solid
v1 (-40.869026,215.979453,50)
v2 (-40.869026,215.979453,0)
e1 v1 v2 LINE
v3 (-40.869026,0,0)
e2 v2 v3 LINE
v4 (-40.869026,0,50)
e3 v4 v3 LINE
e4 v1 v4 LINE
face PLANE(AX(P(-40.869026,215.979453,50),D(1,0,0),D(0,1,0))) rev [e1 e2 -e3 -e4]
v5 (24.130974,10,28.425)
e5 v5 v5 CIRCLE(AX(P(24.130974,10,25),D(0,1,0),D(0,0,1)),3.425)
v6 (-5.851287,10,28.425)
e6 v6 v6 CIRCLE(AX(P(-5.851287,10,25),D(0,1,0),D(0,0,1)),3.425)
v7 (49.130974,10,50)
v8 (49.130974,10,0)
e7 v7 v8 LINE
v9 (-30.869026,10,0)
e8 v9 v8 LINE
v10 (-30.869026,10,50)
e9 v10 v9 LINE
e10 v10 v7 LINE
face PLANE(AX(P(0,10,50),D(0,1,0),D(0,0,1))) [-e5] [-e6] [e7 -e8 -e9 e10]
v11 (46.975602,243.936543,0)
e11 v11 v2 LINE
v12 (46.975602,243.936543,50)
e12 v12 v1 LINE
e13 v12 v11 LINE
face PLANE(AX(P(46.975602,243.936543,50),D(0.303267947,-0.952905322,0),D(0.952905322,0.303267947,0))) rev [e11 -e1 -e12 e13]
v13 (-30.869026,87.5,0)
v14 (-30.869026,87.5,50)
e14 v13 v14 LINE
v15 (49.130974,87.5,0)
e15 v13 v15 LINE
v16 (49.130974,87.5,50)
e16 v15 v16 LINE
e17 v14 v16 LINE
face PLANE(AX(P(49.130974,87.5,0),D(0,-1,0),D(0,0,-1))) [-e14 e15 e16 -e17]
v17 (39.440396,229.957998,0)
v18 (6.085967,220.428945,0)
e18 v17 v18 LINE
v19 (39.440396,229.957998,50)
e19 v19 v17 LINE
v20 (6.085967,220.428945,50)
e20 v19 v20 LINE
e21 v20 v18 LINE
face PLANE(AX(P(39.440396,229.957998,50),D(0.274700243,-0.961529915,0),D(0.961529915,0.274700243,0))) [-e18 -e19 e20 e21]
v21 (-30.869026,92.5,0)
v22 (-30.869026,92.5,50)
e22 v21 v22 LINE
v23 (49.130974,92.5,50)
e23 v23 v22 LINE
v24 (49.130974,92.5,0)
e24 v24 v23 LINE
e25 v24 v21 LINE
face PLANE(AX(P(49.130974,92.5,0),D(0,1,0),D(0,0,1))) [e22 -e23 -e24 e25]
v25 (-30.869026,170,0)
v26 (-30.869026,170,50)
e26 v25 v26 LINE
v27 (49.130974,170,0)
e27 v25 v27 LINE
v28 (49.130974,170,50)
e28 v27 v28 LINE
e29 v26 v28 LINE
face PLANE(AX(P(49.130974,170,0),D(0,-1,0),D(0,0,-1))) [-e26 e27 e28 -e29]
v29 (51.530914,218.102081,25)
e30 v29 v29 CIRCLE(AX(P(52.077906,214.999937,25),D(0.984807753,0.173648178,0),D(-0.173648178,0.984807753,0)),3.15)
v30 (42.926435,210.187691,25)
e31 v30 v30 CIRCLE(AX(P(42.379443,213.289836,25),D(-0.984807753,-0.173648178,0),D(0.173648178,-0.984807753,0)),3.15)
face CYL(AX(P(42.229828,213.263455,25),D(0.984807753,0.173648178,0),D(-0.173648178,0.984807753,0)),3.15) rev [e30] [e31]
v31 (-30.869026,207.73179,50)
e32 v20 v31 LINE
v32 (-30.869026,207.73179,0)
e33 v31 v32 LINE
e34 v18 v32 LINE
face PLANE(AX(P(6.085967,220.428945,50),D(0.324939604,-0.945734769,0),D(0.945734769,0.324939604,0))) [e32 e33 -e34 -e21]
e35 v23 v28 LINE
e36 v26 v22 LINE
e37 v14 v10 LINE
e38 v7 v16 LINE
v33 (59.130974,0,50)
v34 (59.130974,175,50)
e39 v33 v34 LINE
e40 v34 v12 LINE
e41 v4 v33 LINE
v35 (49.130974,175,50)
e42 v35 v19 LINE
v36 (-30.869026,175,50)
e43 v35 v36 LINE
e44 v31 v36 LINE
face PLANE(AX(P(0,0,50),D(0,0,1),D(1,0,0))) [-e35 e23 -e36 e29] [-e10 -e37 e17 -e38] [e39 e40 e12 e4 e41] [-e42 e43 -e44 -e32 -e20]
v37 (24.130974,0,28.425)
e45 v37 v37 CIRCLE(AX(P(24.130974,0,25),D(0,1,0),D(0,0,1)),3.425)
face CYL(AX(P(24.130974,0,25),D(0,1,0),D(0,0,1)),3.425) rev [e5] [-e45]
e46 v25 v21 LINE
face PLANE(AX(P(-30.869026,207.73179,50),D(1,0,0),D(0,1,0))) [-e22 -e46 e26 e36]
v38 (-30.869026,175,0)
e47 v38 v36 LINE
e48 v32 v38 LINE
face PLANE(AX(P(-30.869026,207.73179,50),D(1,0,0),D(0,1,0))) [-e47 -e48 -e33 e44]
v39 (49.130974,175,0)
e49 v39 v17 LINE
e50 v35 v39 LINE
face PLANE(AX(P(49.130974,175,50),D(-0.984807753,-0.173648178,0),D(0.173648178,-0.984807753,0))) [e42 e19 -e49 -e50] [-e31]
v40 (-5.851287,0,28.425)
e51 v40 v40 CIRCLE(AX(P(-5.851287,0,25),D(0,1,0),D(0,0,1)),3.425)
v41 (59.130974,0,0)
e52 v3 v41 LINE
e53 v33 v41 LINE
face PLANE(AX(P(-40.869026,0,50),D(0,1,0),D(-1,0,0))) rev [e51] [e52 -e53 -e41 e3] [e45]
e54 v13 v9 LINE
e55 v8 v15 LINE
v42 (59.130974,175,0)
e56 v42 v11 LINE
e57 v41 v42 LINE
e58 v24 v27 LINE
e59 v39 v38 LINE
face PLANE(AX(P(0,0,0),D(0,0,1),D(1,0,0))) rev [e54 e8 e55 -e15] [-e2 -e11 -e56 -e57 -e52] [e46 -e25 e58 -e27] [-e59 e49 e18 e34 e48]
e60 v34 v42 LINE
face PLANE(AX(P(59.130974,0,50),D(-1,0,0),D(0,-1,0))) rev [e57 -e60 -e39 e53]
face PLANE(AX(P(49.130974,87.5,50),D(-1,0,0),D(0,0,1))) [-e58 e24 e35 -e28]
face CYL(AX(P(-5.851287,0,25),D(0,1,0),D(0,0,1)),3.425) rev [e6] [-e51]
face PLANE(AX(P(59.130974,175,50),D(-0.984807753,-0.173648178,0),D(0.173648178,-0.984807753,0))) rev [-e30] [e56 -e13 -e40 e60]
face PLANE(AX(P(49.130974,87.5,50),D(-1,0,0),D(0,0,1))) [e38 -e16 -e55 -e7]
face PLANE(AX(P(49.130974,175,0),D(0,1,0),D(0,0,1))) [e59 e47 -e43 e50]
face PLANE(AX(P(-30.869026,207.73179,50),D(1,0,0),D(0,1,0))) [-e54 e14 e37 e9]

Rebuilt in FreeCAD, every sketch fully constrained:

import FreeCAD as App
import Part
import Sketcher
from FreeCAD import Vector
Q = App.Units.Quantity


def add_polygon(sketch, points):
    """Adds a closed chain of lines whose ends are joined by coincident constraints."""
    first, n = sketch.GeometryCount, len(points)
    for a, b in zip(points, points[1:] + points[:1]):
        sketch.addGeometry(Part.LineSegment(App.Vector(*a, 0), App.Vector(*b, 0)), False)
    for i in range(n):
        sketch.addConstraint(Sketcher.Constraint("Coincident", first + i, 2, first + (i + 1) % n, 1))

doc = App.newDocument("Part")
body = doc.addObject("PartDesign::Body", "Body")

sketch1 = doc.addObject("Sketcher::SketchObject", "Sketch")
body.addObject(sketch1)
sketch1.AttachmentSupport = (doc.XY_Plane, [""])
sketch1.MapMode = "FlatFace"
add_polygon(sketch1, [(-40.869026, 215.979453), (-40.869026, 0), (59.130974, 0), (59.130974, 175), (46.975602, 243.936543)])
add_polygon(sketch1, [(49.130974, 10), (-30.869026, 10), (-30.869026, 207.73179), (6.085967, 220.428945), (39.440396, 229.957998), (49.130974, 175)])
sketch1.addConstraint([
    Sketcher.Constraint("Vertical", 0),
    Sketcher.Constraint("Horizontal", 1),
    Sketcher.Constraint("Vertical", 2),
    Sketcher.Constraint("Horizontal", 5),
    Sketcher.Constraint("Vertical", 6),
    Sketcher.Constraint("Vertical", 10),
    Sketcher.Constraint("PointOnObject", 0, 2, -1),
    Sketcher.Constraint("Parallel", 3, 9),
    Sketcher.Constraint("Horizontal", 2, 2, 9, 2),
    Sketcher.Constraint("DistanceX", 1, 1, 1, 2, 100.0),
    Sketcher.Constraint("DistanceX", 5, 2, 5, 1, 80.0),
    Sketcher.Constraint("DistanceY", 2, 1, 2, 2, 175.0),
    Sketcher.Constraint("DistanceY", 10, 2, 10, 1, 165.0),
    Sketcher.Constraint("Angle", 3, Q("100 deg")),
    Sketcher.Constraint("Distance", 3, 70.0),
    Sketcher.Constraint("DistanceX", 0, 2, 5, 2, 10.0),
    Sketcher.Constraint("DistanceY", 6, 1, 6, 2, 197.73179),
    Sketcher.Constraint("DistanceX", -1, 1, 3, 2, 46.975602),
    Sketcher.Constraint("DistanceY", 7, 2, 3, 2, 23.507598),
    Sketcher.Constraint("Distance", 7, 39.075431),
    Sketcher.Constraint("DistanceY", 0, 2, 0, 1, 215.979453),
    Sketcher.Constraint("DistanceX", 7, 2, 8, 2, 33.354429),
])
pad1 = doc.addObject("PartDesign::Pad", "Pad")
body.addObject(pad1)
pad1.Profile = sketch1
pad1.Length = 50

sketch2 = doc.addObject("Sketcher::SketchObject", "Sketch001")
body.addObject(sketch2)
sketch2.Placement = App.Placement(Vector(87.27472, 15.388888, 0), App.Rotation(Vector(0, 0, -1), Vector(-0.173648178, 0.984807753, 0), Vector(0.984807753, 0.173648178, 0), "ZXY"))
sketch2.addGeometry(Part.Circle(Vector(-25, 202.690371, 0), Vector(0, 0, 1), 3.15), False)
sketch2.addConstraint([
    Sketcher.Constraint("Diameter", 0, 6.3),
    Sketcher.Constraint("DistanceX", 0, 3, -1, 1, 25.0),
    Sketcher.Constraint("DistanceY", -1, 1, 0, 3, 202.690371),
])
pocket1 = doc.addObject("PartDesign::Pocket", "Pocket")
body.addObject(pocket1)
pocket1.Profile = sketch2
pocket1.Length = 10

sketch3 = doc.addObject("Sketcher::SketchObject", "Sketch002")
body.addObject(sketch3)
sketch3.AttachmentSupport = (doc.XZ_Plane, [""])
sketch3.MapMode = "FlatFace"
sketch3.AttachmentOffset = App.Placement(Vector(0, 0, -10), App.Rotation())
sketch3.addGeometry([
    Part.Circle(Vector(-5.851287, 25, 0), Vector(0, 0, 1), 3.425),
    Part.Circle(Vector(24.130974, 25, 0), Vector(0, 0, 1), 3.425),
], False)
sketch3.addConstraint([
    Sketcher.Constraint("Equal", 0, 1),
    Sketcher.Constraint("Horizontal", 0, 3, 1, 3),
    Sketcher.Constraint("Diameter", 0, 6.85),
    Sketcher.Constraint("DistanceY", -1, 1, 0, 3, 25.0),
    Sketcher.Constraint("DistanceX", 0, 3, 1, 3, 29.982261),
    Sketcher.Constraint("DistanceX", 0, 3, -1, 1, 5.851287),
])
pocket2 = doc.addObject("PartDesign::Pocket", "Pocket001")
body.addObject(pocket2)
pocket2.Profile = sketch3
pocket2.Length = 10
pocket2.Reversed = True

sketch4 = doc.addObject("Sketcher::SketchObject", "Sketch003")
body.addObject(sketch4)
sketch4.AttachmentSupport = (doc.XY_Plane, [""])
sketch4.MapMode = "FlatFace"
sketch4.AttachmentOffset = App.Placement(Vector(0, 0, 50), App.Rotation())
add_polygon(sketch4, [(-30.869026, 175), (-30.869026, 170), (49.130974, 170), (49.130974, 175)])
add_polygon(sketch4, [(-30.869026, 92.5), (-30.869026, 87.5), (49.130974, 87.5), (49.130974, 92.5)])
sketch4.addConstraint([
    Sketcher.Constraint("Vertical", 0),
    Sketcher.Constraint("Horizontal", 1),
    Sketcher.Constraint("Vertical", 2),
    Sketcher.Constraint("Horizontal", 3),
    Sketcher.Constraint("Vertical", 4),
    Sketcher.Constraint("Horizontal", 5),
    Sketcher.Constraint("Vertical", 6),
    Sketcher.Constraint("Horizontal", 7),
    Sketcher.Constraint("Vertical", 3, 2, 4, 2),
    Sketcher.Constraint("Vertical", 2, 2, 5, 2),
    Sketcher.Constraint("Equal", 2, 4),
    Sketcher.Constraint("DistanceX", 1, 1, 1, 2, 80.0),
    Sketcher.Constraint("DistanceY", 0, 2, 0, 1, 5.0),
    Sketcher.Constraint("DistanceY", -1, 1, 0, 2, 170.0),
    Sketcher.Constraint("DistanceY", -1, 1, 4, 2, 87.5),
    Sketcher.Constraint("DistanceX", 0, 2, -1, 1, 30.869026),
])
pad2 = doc.addObject("PartDesign::Pad", "Pad001")
body.addObject(pad2)
pad2.Profile = sketch4
pad2.Length = 50
pad2.Reversed = True

doc.recompute()
